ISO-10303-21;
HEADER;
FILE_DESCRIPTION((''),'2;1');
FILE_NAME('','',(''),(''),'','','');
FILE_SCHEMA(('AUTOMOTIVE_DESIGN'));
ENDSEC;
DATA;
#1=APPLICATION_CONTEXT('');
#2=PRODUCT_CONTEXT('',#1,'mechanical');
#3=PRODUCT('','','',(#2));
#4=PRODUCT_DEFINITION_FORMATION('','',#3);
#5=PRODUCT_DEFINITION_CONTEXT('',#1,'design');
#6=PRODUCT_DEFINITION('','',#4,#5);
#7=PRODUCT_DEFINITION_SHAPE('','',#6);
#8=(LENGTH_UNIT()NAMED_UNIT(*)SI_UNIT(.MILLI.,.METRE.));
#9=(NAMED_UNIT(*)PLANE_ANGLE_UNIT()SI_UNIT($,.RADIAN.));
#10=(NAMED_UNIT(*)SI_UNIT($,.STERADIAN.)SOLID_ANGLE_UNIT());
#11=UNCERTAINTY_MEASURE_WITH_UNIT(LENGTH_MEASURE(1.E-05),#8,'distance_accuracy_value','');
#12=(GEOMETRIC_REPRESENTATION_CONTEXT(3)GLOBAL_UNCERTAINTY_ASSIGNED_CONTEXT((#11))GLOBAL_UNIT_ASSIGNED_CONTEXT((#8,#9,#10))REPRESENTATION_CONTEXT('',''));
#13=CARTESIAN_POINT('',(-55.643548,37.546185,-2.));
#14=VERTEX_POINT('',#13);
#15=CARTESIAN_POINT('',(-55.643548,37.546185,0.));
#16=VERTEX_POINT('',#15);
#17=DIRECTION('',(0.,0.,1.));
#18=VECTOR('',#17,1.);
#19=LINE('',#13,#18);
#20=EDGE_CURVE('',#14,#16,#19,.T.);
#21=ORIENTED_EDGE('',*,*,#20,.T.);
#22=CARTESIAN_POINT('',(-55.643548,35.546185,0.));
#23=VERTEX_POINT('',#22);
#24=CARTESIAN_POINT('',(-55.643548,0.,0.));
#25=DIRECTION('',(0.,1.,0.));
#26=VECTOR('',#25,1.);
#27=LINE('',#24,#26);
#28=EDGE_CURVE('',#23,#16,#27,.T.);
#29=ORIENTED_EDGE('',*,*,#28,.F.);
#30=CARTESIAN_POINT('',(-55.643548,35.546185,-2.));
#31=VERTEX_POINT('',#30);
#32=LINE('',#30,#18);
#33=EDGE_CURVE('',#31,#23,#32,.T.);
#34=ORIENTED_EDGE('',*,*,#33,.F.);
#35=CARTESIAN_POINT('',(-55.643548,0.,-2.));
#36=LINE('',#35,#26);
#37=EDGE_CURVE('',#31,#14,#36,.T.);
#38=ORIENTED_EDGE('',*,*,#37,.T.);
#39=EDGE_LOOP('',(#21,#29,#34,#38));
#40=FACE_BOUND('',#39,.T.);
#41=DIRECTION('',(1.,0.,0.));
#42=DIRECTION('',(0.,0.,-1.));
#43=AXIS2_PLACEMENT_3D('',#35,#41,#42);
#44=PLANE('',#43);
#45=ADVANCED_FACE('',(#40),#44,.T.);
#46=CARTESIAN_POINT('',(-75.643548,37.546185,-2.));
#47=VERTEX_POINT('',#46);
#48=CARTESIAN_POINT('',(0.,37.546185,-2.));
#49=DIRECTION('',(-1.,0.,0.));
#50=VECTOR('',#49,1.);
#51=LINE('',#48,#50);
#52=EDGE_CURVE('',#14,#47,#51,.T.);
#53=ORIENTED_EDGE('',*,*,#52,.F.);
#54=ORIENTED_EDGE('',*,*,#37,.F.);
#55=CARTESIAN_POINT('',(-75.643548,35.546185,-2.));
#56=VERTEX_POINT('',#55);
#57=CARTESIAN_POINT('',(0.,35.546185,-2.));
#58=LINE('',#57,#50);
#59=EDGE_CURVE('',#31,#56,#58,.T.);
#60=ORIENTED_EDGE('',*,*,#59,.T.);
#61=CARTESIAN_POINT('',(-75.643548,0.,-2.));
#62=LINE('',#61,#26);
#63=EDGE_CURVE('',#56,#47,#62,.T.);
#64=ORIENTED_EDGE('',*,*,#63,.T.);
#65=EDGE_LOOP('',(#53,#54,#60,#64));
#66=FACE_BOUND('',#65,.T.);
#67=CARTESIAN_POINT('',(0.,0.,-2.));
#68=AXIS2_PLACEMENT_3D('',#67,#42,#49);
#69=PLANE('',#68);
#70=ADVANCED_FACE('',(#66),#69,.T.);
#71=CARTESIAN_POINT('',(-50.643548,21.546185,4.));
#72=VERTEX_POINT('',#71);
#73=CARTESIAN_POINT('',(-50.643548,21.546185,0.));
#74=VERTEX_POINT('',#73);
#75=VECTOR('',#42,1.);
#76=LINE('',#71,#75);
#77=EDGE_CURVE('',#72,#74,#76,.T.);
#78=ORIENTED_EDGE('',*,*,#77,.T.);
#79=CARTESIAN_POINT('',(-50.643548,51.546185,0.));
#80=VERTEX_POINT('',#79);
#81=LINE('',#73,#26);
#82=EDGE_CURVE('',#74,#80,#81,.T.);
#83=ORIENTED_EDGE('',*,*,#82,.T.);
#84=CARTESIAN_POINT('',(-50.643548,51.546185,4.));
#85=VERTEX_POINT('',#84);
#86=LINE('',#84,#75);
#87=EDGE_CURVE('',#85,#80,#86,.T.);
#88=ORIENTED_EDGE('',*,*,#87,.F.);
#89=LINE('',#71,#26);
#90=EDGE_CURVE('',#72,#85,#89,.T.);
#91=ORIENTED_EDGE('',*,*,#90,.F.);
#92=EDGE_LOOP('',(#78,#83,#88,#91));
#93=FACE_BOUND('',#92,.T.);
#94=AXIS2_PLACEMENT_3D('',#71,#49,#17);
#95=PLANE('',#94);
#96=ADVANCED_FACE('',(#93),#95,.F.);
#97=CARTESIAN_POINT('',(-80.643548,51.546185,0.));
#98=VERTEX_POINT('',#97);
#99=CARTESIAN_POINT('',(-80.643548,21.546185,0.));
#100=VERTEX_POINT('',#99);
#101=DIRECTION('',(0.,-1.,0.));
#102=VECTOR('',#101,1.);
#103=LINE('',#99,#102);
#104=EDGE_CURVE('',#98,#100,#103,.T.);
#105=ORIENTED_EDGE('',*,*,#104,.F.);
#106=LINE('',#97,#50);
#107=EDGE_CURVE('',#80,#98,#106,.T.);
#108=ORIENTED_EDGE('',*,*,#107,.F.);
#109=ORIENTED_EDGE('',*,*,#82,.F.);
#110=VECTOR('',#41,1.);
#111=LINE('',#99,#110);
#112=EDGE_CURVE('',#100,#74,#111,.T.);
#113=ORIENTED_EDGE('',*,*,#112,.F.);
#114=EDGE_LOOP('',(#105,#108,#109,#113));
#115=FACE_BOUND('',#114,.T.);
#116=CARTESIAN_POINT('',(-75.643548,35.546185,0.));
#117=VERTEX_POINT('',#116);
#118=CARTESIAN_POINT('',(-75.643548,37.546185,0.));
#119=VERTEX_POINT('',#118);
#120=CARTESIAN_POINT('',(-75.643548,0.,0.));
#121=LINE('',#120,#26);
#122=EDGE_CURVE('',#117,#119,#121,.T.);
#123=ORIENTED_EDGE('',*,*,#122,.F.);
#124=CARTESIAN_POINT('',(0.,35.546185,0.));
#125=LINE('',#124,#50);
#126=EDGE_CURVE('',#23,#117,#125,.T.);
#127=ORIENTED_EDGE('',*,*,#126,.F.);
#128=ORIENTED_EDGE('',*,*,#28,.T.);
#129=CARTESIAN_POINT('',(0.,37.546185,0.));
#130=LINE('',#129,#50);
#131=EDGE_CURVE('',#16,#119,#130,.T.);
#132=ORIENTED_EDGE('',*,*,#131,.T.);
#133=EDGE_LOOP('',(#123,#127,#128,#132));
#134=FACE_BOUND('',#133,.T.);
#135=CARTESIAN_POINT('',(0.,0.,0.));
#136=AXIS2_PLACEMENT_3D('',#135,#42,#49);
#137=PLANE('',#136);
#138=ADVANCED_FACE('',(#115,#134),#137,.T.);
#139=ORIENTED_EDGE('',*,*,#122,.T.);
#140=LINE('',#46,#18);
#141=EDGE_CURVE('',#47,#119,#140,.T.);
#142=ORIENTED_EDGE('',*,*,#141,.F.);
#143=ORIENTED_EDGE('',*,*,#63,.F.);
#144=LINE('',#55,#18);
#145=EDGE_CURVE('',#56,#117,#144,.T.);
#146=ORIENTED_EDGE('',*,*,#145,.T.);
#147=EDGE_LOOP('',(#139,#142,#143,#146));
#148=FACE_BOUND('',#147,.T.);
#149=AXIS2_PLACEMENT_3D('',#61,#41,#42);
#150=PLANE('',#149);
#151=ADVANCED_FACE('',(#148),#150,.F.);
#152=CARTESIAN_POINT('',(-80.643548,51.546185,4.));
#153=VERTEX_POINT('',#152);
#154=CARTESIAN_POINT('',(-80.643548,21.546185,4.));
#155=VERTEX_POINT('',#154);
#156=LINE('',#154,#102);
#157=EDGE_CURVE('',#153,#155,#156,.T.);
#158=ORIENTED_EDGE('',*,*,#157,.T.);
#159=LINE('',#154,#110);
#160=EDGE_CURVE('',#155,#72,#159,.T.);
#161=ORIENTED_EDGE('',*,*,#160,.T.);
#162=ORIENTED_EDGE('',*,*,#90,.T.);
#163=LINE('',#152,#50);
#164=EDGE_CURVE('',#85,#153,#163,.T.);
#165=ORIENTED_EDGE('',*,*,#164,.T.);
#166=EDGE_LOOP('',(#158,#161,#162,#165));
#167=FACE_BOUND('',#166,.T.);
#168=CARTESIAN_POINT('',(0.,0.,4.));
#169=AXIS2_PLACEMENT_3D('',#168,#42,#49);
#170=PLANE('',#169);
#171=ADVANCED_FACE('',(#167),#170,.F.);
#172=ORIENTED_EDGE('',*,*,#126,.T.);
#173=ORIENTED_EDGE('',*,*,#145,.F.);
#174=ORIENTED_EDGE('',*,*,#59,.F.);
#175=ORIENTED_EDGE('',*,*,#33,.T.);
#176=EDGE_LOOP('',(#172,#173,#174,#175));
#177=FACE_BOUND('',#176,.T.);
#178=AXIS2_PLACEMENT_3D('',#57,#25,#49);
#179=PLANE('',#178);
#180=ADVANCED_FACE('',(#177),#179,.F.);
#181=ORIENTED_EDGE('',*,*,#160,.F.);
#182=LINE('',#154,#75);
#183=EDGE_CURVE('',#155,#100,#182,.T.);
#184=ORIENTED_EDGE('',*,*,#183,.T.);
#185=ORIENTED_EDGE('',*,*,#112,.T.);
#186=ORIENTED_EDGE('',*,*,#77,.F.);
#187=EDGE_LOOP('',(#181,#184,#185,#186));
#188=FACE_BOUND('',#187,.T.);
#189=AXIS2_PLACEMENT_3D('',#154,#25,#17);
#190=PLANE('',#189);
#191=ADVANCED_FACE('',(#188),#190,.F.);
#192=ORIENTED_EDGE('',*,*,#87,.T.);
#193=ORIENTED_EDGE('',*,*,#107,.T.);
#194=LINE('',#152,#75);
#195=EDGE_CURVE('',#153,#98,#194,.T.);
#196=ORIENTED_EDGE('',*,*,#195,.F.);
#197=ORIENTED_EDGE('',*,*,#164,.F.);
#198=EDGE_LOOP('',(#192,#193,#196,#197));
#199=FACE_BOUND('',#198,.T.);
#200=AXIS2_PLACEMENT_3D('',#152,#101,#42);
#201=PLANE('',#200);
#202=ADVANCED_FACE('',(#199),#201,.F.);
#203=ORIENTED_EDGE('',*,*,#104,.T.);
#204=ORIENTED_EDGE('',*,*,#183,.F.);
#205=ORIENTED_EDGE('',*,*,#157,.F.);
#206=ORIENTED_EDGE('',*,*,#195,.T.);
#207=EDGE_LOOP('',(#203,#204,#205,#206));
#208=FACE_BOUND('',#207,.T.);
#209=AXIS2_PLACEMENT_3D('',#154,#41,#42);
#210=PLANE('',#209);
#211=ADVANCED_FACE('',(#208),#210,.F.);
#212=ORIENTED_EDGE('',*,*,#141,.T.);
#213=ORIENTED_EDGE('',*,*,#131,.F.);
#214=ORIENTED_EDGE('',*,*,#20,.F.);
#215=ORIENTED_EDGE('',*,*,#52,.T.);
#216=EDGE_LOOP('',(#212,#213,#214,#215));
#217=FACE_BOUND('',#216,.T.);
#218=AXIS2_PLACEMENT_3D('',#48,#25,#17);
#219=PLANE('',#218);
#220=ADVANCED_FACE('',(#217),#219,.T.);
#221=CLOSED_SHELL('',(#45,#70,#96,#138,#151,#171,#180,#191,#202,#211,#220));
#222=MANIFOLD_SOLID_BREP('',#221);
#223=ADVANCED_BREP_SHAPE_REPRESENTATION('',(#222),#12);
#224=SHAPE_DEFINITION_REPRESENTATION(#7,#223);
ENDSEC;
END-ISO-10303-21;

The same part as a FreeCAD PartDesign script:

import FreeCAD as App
import Part
import Sketcher
from FreeCAD import Vector
Q = App.Units.Quantity

doc = App.newDocument("Part")
body = doc.addObject("PartDesign::Body", "Body")

# Sketch on XY plane
sketch1 = body.newObject("Sketcher::SketchObject", "Sketch")
sketch1.AttachmentSupport = (doc.getObject("XY_Plane"), [""])
sketch1.MapMode = "FlatFace"
sketch1.addGeometry([
    Part.LineSegment(Vector(-80.643548, 51.546185, 0), Vector(-80.643548, 21.546185, 0)),
    Part.LineSegment(Vector(-80.643548, 21.546185, 0), Vector(-50.643548, 21.546185, 0)),
    Part.LineSegment(Vector(-50.643548, 21.546185, 0), Vector(-50.643548, 51.546185, 0)),
    Part.LineSegment(Vector(-50.643548, 51.546185, 0), Vector(-80.643548, 51.546185, 0)),
], False)
sketch1.addConstraint([
    Sketcher.Constraint("Coincident", 0, 2, 1, 1),
    Sketcher.Constraint("Coincident", 1, 2, 2, 1),
    Sketcher.Constraint("Coincident", 2, 2, 3, 1),
    Sketcher.Constraint("Coincident", 3, 2, 0, 1),
    Sketcher.Constraint("Vertical", 0),
    Sketcher.Constraint("Horizontal", 1),
    Sketcher.Constraint("Vertical", 2),
    Sketcher.Constraint("Horizontal", 3),
    Sketcher.Constraint("Equal", 3, 0),
    Sketcher.Constraint("DistanceX", 1, 1, 1, 2, Q("30 mm")),
    Sketcher.Constraint("DistanceX", 0, 2, -1, 1, Q("80.643548 mm")),
    Sketcher.Constraint("DistanceY", -1, 1, 0, 2, Q("21.546185 mm")),
])
pad1 = body.newObject("PartDesign::Pad", "Pad")
pad1.Profile = sketch1
pad1.Length = 4

# Sketch on XY plane
sketch2 = body.newObject("Sketcher::SketchObject", "Sketch001")
sketch2.AttachmentSupport = (doc.getObject("XY_Plane"), [""])
sketch2.MapMode = "FlatFace"
sketch2.addGeometry([
    Part.LineSegment(Vector(-55.643548, 35.546185, 0), Vector(-75.643548, 35.546185, 0)),
    Part.LineSegment(Vector(-75.643548, 35.546185, 0), Vector(-75.643548, 37.546185, 0)),
    Part.LineSegment(Vector(-75.643548, 37.546185, 0), Vector(-55.643548, 37.546185, 0)),
    Part.LineSegment(Vector(-55.643548, 37.546185, 0), Vector(-55.643548, 35.546185, 0)),
], False)
sketch2.addConstraint([
    Sketcher.Constraint("Coincident", 0, 2, 1, 1),
    Sketcher.Constraint("Coincident", 1, 2, 2, 1),
    Sketcher.Constraint("Coincident", 2, 2, 3, 1),
    Sketcher.Constraint("Coincident", 3, 2, 0, 1),
    Sketcher.Constraint("Horizontal", 0),
    Sketcher.Constraint("Vertical", 1),
    Sketcher.Constraint("Horizontal", 2),
    Sketcher.Constraint("Vertical", 3),
    Sketcher.Constraint("DistanceX", 0, 2, 0, 1, Q("20 mm")),
    Sketcher.Constraint("DistanceY", 1, 1, 1, 2, Q("2 mm")),
    Sketcher.Constraint("DistanceX", 0, 2, -1, 1, Q("75.643548 mm")),
    Sketcher.Constraint("DistanceY", -1, 1, 0, 2, Q("35.546185 mm")),
])
pad2 = body.newObject("PartDesign::Pad", "Pad001")
pad2.Profile = sketch2
pad2.Length = 2
pad2.Reversed = True

doc.recompute()
